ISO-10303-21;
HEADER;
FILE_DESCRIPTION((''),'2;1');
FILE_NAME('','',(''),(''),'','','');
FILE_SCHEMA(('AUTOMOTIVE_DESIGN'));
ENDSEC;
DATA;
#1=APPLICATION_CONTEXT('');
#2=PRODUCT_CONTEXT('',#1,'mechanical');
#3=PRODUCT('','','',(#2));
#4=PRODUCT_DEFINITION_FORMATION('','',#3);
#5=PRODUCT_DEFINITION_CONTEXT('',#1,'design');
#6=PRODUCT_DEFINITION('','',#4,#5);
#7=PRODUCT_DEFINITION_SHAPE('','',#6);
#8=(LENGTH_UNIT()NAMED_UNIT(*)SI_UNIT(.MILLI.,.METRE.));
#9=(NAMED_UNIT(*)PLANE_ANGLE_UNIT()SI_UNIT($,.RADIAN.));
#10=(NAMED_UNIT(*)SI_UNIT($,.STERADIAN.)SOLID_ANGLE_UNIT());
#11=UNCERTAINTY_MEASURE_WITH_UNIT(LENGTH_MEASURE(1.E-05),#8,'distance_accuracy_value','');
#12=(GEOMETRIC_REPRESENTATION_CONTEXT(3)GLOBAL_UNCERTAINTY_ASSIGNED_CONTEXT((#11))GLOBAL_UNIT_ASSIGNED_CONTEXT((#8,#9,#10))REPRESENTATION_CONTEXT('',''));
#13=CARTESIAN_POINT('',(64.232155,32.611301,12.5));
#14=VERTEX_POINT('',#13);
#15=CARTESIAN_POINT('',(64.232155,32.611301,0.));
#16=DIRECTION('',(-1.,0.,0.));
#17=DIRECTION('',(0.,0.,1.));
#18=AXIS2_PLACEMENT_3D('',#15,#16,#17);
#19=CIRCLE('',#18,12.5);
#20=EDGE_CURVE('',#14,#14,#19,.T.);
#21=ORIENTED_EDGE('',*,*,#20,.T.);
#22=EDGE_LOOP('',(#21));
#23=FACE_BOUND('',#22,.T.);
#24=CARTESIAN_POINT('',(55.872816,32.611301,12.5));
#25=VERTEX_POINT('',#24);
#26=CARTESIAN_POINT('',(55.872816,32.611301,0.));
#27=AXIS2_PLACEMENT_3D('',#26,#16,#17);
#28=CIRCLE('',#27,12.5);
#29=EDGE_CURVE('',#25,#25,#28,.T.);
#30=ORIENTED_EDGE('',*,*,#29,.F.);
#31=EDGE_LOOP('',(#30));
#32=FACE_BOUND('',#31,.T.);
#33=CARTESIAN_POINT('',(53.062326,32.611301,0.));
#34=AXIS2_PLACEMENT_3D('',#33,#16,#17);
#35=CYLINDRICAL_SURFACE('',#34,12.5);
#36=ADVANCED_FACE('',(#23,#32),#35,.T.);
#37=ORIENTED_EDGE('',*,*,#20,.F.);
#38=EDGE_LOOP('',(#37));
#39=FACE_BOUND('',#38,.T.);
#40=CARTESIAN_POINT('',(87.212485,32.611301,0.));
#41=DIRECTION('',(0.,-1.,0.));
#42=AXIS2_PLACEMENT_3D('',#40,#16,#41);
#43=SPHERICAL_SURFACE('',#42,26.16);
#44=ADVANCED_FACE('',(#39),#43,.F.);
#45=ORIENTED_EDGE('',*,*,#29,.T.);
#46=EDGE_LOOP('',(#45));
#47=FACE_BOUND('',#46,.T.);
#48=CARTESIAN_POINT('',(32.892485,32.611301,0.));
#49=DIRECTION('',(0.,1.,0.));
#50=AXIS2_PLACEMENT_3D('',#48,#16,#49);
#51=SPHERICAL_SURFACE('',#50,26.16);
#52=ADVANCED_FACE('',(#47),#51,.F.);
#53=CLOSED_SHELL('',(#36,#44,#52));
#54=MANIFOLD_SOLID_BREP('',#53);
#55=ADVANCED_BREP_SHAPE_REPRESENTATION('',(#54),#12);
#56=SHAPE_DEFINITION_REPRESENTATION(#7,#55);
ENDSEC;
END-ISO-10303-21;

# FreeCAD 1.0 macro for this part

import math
import FreeCAD as App
import Part
import Sketcher

doc = App.newDocument("Part")
body = doc.addObject("PartDesign::Body", "Body")

# Sketch on XY plane
sketch1 = body.newObject("Sketcher::SketchObject", "Sketch")
sketch1.AttachmentSupport = (doc.getObject("XY_Plane"), [""])
sketch1.MapMode = "FlatFace"
sketch1.addGeometry([
    Part.LineSegment(App.Vector(59.052485, 32.611301, 0), App.Vector(61.052485, 32.611301, 0)),
    Part.ArcOfCircle(Part.Circle(App.Vector(87.212485, 32.611301, 0), App.Vector(0, 0, 1), 26.16), math.radians(151.45631), math.radians(180)),
    Part.LineSegment(App.Vector(64.232155, 45.111301, 0), App.Vector(55.872816, 45.111301, 0)),
    Part.ArcOfCircle(Part.Circle(App.Vector(32.892485, 32.611301, 0), App.Vector(0, 0, 1), 26.16), math.radians(0), math.radians(28.54369)),
], False)
sketch1.addGeometry(Part.LineSegment(App.Vector(32.892485, 32.611301, 0), App.Vector(87.212485, 32.611301, 0)), True)  # axis
sketch1.addConstraint([
    Sketcher.Constraint("Coincident", 0, 2, 1, 2),
    Sketcher.Constraint("Coincident", 1, 1, 2, 1),
    Sketcher.Constraint("Coincident", 2, 2, 3, 2),
    Sketcher.Constraint("Coincident", 3, 1, 0, 1),
    Sketcher.Constraint("Horizontal", 0),
    Sketcher.Constraint("Horizontal", 2),
    Sketcher.Constraint("Horizontal", 4),
    Sketcher.Constraint("Coincident", 4, 1, 3, 3),
    Sketcher.Constraint("Coincident", 4, 2, 1, 3),
    Sketcher.Constraint("Equal", 1, 3),
    Sketcher.Constraint("Horizontal", 3, 3, 0, 2),
    Sketcher.Constraint("DistanceX", 0, 1, 0, 2, 2.0),
    Sketcher.Constraint("Radius", 1, 26.16),
    Sketcher.Constraint("DistanceY", 0, 2, 1, 1, 12.5),
    Sketcher.Constraint("DistanceY", -1, 1, 1, 3, 32.611301),
    Sketcher.Constraint("DistanceX", -1, 1, 1, 3, 87.212485),
])
revolution = body.newObject("PartDesign::Revolution", "Revolution")
revolution.Profile = sketch1
revolution.ReferenceAxis = (sketch1, ["Axis0"])
revolution.Angle = 360

doc.recompute()
